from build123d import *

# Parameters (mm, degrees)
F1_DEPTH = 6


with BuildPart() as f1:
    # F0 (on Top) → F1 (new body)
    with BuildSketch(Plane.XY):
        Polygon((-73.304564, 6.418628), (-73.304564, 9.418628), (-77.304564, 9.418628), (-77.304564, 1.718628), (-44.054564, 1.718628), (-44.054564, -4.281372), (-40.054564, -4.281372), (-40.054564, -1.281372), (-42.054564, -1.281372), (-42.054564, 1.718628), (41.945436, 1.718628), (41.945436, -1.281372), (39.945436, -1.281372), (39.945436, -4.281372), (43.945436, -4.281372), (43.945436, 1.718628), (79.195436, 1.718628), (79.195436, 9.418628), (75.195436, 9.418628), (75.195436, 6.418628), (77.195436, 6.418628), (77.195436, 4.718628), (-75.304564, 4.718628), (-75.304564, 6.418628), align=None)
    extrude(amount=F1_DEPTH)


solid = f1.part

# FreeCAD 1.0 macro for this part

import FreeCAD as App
import Part
import Sketcher

V = App.Vector

doc = App.newDocument("Part")
body = doc.addObject("PartDesign::Body", "Body")

sketch1 = body.newObject("Sketcher::SketchObject", "Sketch")
sketch1.AttachmentSupport = (doc.getObject("XY_Plane"), [""])
sketch1.MapMode = "FlatFace"
sketch1.addGeometry([
    Part.LineSegment(V(-73.304564, 6.418628, 0), V(-73.304564, 9.418628, 0)),
    Part.LineSegment(V(-73.304564, 9.418628, 0), V(-77.304564, 9.418628, 0)),
    Part.LineSegment(V(-77.304564, 9.418628, 0), V(-77.304564, 1.718628, 0)),
    Part.LineSegment(V(-77.304564, 1.718628, 0), V(-44.054564, 1.718628, 0)),
    Part.LineSegment(V(-44.054564, 1.718628, 0), V(-44.054564, -4.281372, 0)),
    Part.LineSegment(V(-44.054564, -4.281372, 0), V(-40.054564, -4.281372, 0)),
    Part.LineSegment(V(-40.054564, -4.281372, 0), V(-40.054564, -1.281372, 0)),
    Part.LineSegment(V(-40.054564, -1.281372, 0), V(-42.054564, -1.281372, 0)),
    Part.LineSegment(V(-42.054564, -1.281372, 0), V(-42.054564, 1.718628, 0)),
    Part.LineSegment(V(-42.054564, 1.718628, 0), V(41.945436, 1.718628, 0)),
    Part.LineSegment(V(41.945436, 1.718628, 0), V(41.945436, -1.281372, 0)),
    Part.LineSegment(V(41.945436, -1.281372, 0), V(39.945436, -1.281372, 0)),
    Part.LineSegment(V(39.945436, -1.281372, 0), V(39.945436, -4.281372, 0)),
    Part.LineSegment(V(39.945436, -4.281372, 0), V(43.945436, -4.281372, 0)),
    Part.LineSegment(V(43.945436, -4.281372, 0), V(43.945436, 1.718628, 0)),
    Part.LineSegment(V(43.945436, 1.718628, 0), V(79.195436, 1.718628, 0)),
    Part.LineSegment(V(79.195436, 1.718628, 0), V(79.195436, 9.418628, 0)),
    Part.LineSegment(V(79.195436, 9.418628, 0), V(75.195436, 9.418628, 0)),
    Part.LineSegment(V(75.195436, 9.418628, 0), V(75.195436, 6.418628, 0)),
    Part.LineSegment(V(75.195436, 6.418628, 0), V(77.195436, 6.418628, 0)),
    Part.LineSegment(V(77.195436, 6.418628, 0), V(77.195436, 4.718628, 0)),
    Part.LineSegment(V(77.195436, 4.718628, 0), V(-75.304564, 4.718628, 0)),
    Part.LineSegment(V(-75.304564, 4.718628, 0), V(-75.304564, 6.418628, 0)),
    Part.LineSegment(V(-75.304564, 6.418628, 0), V(-73.304564, 6.418628, 0)),
], False)
sketch1.addConstraint([
    Sketcher.Constraint("Coincident", 0, 2, 1, 1),
    Sketcher.Constraint("Coincident", 1, 2, 2, 1),
    Sketcher.Constraint("Coincident", 2, 2, 3, 1),
    Sketcher.Constraint("Coincident", 3, 2, 4, 1),
    Sketcher.Constraint("Coincident", 4, 2, 5, 1),
    Sketcher.Constraint("Coincident", 5, 2, 6, 1),
    Sketcher.Constraint("Coincident", 6, 2, 7, 1),
    Sketcher.Constraint("Coincident", 7, 2, 8, 1),
    Sketcher.Constraint("Coincident", 8, 2, 9, 1),
    Sketcher.Constraint("Coincident", 9, 2, 10, 1),
    Sketcher.Constraint("Coincident", 10, 2, 11, 1),
    Sketcher.Constraint("Coincident", 11, 2, 12, 1),
    Sketcher.Constraint("Coincident", 12, 2, 13, 1),
    Sketcher.Constraint("Coincident", 13, 2, 14, 1),
    Sketcher.Constraint("Coincident", 14, 2, 15, 1),
    Sketcher.Constraint("Coincident", 15, 2, 16, 1),
    Sketcher.Constraint("Coincident", 16, 2, 17, 1),
    Sketcher.Constraint("Coincident", 17, 2, 18, 1),
    Sketcher.Constraint("Coincident", 18, 2, 19, 1),
    Sketcher.Constraint("Coincident", 19, 2, 20, 1),
    Sketcher.Constraint("Coincident", 20, 2, 21, 1),
    Sketcher.Constraint("Coincident", 21, 2, 22, 1),
    Sketcher.Constraint("Coincident", 22, 2, 23, 1),
    Sketcher.Constraint("Coincident", 23, 2, 0, 1),
    Sketcher.Constraint("Vertical", 0),
    Sketcher.Constraint("Horizontal", 1),
    Sketcher.Constraint("Vertical", 2),
    Sketcher.Constraint("Horizontal", 3),
    Sketcher.Constraint("Vertical", 4),
    Sketcher.Constraint("Horizontal", 5),
    Sketcher.Constraint("Vertical", 6),
    Sketcher.Constraint("Horizontal", 7),
    Sketcher.Constraint("Vertical", 8),
    Sketcher.Constraint("Horizontal", 9),
    Sketcher.Constraint("Vertical", 10),
    Sketcher.Constraint("Horizontal", 11),
    Sketcher.Constraint("Vertical", 12),
    Sketcher.Constraint("Horizontal", 13),
    Sketcher.Constraint("Vertical", 14),
    Sketcher.Constraint("Horizontal", 15),
    Sketcher.Constraint("Vertical", 16),
    Sketcher.Constraint("Horizontal", 17),
    Sketcher.Constraint("Vertical", 18),
    Sketcher.Constraint("Horizontal", 19),
    Sketcher.Constraint("Vertical", 20),
    Sketcher.Constraint("Horizontal", 21),
    Sketcher.Constraint("Vertical", 22),
    Sketcher.Constraint("Horizontal", 23),
    Sketcher.Constraint("Horizontal", 3, 2, 8, 2),
    Sketcher.Constraint("Horizontal", 7, 2, 10, 2),
    Sketcher.Constraint("Horizontal", 5, 2, 12, 2),
    Sketcher.Constraint("Horizontal", 9, 2, 14, 2),
    Sketcher.Constraint("Horizontal", 1, 2, 16, 2),
    Sketcher.Constraint("Horizontal", 19, 2, 22, 2),
    Sketcher.Constraint("Equal", 1, 5),
    Sketcher.Constraint("Equal", 7, 11),
    Sketcher.Constraint("Equal", 5, 13),
    Sketcher.Constraint("Equal", 13, 17),
    Sketcher.Constraint("Equal", 11, 19),
    Sketcher.Constraint("Equal", 19, 23),
    Sketcher.Constraint("Equal", 0, 6),
    Sketcher.Constraint("Equal", 6, 8),
    Sketcher.Constraint("DistanceX", 1, 2, 1, 1, 4.0),
    Sketcher.Constraint("DistanceX", 7, 2, 7, 1, 2.0),
    Sketcher.Constraint("DistanceX", 9, 1, 9, 2, 84.0),
    Sketcher.Constraint("DistanceY", 0, 1, 0, 2, 3.0),
    Sketcher.Constraint("DistanceX", 21, 2, 21, 1, 152.5),
    Sketcher.Constraint("DistanceY", 2, 2, 2, 1, 7.7),
    Sketcher.Constraint("DistanceY", 20, 2, 20, 1, 1.7),
    Sketcher.Constraint("DistanceX", 3, 1, 3, 2, 33.25),
    Sketcher.Constraint("DistanceX", 0, 2, -1, 1, 73.304564),
    Sketcher.Constraint("DistanceY", -1, 1, 0, 2, 9.418628),
])
pad1 = body.newObject("PartDesign::Pad", "Pad")
pad1.Profile = sketch1
pad1.Length = 6

doc.recompute()
